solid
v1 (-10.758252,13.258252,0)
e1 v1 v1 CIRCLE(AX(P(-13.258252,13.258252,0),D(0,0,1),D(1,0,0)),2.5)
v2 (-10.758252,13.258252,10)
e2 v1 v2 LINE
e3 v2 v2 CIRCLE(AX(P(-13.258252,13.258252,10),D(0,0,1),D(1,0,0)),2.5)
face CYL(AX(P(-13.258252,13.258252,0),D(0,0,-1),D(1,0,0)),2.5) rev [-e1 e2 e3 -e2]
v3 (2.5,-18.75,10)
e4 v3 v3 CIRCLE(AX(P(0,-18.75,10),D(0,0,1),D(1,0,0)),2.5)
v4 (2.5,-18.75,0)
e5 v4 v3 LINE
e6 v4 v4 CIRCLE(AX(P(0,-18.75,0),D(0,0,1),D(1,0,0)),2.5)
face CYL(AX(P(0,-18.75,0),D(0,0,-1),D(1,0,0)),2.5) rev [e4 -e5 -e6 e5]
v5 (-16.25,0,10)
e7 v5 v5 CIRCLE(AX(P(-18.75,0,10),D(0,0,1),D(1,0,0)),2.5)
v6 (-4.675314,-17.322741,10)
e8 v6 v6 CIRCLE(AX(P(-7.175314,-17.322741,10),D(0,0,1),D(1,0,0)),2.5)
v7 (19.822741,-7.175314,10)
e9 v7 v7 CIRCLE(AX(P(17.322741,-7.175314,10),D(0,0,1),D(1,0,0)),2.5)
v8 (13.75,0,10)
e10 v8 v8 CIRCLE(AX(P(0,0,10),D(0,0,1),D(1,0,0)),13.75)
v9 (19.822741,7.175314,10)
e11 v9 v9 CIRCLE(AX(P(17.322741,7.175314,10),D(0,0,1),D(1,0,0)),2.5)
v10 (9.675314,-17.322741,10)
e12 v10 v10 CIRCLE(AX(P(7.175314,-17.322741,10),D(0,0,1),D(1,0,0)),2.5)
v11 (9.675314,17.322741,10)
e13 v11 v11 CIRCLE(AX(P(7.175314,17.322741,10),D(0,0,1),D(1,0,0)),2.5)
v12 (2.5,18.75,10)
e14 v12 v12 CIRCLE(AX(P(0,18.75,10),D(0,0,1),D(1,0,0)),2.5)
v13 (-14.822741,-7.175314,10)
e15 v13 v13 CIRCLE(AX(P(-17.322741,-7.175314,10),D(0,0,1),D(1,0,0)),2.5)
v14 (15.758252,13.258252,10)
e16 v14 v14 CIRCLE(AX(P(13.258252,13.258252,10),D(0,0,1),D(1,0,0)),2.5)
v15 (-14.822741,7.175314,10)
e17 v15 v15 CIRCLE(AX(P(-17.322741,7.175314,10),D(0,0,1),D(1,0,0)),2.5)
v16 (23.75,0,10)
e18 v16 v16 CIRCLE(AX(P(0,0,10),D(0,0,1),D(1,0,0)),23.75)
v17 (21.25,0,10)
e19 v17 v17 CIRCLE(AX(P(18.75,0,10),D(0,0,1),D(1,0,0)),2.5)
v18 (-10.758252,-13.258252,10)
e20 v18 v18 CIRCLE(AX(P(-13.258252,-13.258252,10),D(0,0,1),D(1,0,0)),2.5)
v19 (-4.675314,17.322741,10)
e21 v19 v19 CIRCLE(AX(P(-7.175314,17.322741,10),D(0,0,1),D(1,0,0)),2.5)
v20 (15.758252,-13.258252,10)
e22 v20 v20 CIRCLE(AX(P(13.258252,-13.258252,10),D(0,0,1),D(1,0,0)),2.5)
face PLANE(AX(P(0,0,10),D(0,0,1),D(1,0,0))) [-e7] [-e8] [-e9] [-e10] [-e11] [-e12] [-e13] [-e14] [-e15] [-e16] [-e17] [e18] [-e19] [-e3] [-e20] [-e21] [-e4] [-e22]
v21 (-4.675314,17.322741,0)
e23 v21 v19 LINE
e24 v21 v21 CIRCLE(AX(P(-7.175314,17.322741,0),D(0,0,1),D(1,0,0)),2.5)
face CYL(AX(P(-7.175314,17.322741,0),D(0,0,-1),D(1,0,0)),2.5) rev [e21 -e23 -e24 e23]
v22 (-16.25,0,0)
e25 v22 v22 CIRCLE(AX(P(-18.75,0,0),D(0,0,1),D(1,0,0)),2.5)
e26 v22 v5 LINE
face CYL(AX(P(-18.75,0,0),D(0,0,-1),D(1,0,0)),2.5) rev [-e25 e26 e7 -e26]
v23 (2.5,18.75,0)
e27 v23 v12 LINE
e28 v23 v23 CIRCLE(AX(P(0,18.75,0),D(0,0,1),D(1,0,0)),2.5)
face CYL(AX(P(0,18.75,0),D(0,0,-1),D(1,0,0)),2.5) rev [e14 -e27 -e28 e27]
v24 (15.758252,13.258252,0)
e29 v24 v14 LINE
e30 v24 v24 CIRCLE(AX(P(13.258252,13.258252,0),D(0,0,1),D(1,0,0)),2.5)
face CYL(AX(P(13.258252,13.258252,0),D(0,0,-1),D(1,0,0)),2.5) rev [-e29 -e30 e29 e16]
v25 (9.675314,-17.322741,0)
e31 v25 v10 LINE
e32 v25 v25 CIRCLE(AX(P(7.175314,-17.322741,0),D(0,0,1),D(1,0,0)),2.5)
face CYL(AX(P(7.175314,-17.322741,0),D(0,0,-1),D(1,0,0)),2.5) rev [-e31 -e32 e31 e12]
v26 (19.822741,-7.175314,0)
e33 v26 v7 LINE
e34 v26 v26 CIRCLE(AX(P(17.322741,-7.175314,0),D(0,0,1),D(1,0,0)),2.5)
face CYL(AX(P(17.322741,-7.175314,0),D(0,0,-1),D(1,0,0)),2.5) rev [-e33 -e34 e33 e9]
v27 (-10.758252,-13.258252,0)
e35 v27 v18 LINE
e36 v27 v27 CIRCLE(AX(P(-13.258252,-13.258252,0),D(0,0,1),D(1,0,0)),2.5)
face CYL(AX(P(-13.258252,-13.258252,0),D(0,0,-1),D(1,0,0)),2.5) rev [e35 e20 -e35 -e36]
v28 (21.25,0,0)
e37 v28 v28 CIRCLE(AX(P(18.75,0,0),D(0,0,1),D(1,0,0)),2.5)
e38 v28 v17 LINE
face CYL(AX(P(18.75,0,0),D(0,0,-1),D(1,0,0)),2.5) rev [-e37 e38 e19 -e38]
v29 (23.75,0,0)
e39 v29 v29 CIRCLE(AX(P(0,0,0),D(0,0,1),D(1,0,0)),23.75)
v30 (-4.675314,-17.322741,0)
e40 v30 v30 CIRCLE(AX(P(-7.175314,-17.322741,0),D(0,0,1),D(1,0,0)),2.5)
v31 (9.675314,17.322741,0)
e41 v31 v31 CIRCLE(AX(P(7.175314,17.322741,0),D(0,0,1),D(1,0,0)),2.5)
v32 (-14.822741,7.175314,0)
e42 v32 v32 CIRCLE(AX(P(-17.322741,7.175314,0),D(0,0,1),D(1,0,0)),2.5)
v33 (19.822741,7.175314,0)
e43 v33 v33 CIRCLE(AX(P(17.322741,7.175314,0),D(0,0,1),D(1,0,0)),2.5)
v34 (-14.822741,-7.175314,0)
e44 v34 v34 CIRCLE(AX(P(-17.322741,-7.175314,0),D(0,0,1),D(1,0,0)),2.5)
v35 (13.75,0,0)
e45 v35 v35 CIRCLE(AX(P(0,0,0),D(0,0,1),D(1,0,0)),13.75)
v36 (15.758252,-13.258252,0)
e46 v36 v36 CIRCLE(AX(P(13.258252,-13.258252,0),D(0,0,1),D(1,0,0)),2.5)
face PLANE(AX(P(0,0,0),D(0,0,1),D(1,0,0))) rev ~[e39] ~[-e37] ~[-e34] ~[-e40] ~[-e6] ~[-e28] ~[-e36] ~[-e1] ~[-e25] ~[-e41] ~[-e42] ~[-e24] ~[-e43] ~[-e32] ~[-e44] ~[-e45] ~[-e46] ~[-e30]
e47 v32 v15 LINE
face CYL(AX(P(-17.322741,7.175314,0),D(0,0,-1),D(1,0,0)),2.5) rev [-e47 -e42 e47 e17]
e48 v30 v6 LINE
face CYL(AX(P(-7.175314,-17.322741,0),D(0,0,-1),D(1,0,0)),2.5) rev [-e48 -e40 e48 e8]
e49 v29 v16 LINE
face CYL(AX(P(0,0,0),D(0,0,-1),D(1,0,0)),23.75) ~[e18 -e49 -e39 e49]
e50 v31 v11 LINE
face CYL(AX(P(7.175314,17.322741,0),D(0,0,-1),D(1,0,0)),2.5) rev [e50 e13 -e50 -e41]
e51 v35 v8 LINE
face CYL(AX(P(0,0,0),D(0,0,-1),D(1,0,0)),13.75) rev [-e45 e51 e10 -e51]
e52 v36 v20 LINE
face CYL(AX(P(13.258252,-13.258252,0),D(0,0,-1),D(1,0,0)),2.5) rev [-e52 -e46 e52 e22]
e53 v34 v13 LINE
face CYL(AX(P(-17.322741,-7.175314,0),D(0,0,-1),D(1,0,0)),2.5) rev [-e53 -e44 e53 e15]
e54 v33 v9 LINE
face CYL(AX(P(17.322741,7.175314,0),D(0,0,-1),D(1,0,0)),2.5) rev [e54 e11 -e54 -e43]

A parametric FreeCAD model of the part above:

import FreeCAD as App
import Part
import Sketcher

doc = App.newDocument("Part")
body = doc.addObject("PartDesign::Body", "Body")

sketch1 = doc.addObject("Sketcher::SketchObject", "Sketch")
body.addObject(sketch1)
sketch1.AttachmentSupport = (doc.XY_Plane, [""])
sketch1.MapMode = "FlatFace"
sketch1.addGeometry(Part.Circle(App.Vector(0, 0, 0), App.Vector(0, 0, 1), 23.8), False)
sketch1.addGeometry(Part.Circle(App.Vector(-13.3, -13.3, 0), App.Vector(0, 0, 1), 2.5), False)
sketch1.addGeometry(Part.Circle(App.Vector(-7.2, -17.3, 0), App.Vector(0, 0, 1), 2.5), False)
sketch1.addGeometry(Part.Circle(App.Vector(-17.3, -7.2, 0), App.Vector(0, 0, 1), 2.5), False)
sketch1.addGeometry(Part.Circle(App.Vector(0, -18.8, 0), App.Vector(0, 0, 1), 2.5), False)
sketch1.addGeometry(Part.Circle(App.Vector(7.2, -17.3, 0), App.Vector(0, 0, 1), 2.5), False)
sketch1.addGeometry(Part.Circle(App.Vector(13.3, -13.3, 0), App.Vector(0, 0, 1), 2.5), False)
sketch1.addGeometry(Part.Circle(App.Vector(17.3, -7.2, 0), App.Vector(0, 0, 1), 2.5), False)
sketch1.addGeometry(Part.Circle(App.Vector(-18.8, 0, 0), App.Vector(0, 0, 1), 2.5), False)
sketch1.addGeometry(Part.Circle(App.Vector(-17.3, 7.2, 0), App.Vector(0, 0, 1), 2.5), False)
sketch1.addGeometry(Part.Circle(App.Vector(-13.3, 13.3, 0), App.Vector(0, 0, 1), 2.5), False)
sketch1.addGeometry(Part.Circle(App.Vector(-7.2, 17.3, 0), App.Vector(0, 0, 1), 2.5), False)
sketch1.addGeometry(Part.Circle(App.Vector(0, 0, 0), App.Vector(0, 0, 1), 13.8), False)
sketch1.addGeometry(Part.Circle(App.Vector(18.8, 0, 0), App.Vector(0, 0, 1), 2.5), False)
sketch1.addGeometry(Part.Circle(App.Vector(17.3, 7.2, 0), App.Vector(0, 0, 1), 2.5), False)
sketch1.addGeometry(Part.Circle(App.Vector(0, 18.8, 0), App.Vector(0, 0, 1), 2.5), False)
sketch1.addGeometry(Part.Circle(App.Vector(7.2, 17.3, 0), App.Vector(0, 0, 1), 2.5), False)
sketch1.addGeometry(Part.Circle(App.Vector(13.3, 13.3, 0), App.Vector(0, 0, 1), 2.5), False)
sketch1.addConstraint(Sketcher.Constraint("Coincident", 0, 3, -1, 1))
sketch1.addConstraint(Sketcher.Constraint("Coincident", 12, 3, -1, 1))
sketch1.addConstraint(Sketcher.Constraint("Equal", 1, 2))
sketch1.addConstraint(Sketcher.Constraint("Equal", 2, 3))
sketch1.addConstraint(Sketcher.Constraint("Equal", 3, 4))
sketch1.addConstraint(Sketcher.Constraint("Equal", 4, 5))
sketch1.addConstraint(Sketcher.Constraint("Equal", 5, 6))
sketch1.addConstraint(Sketcher.Constraint("Equal", 6, 7))
sketch1.addConstraint(Sketcher.Constraint("Equal", 7, 8))
sketch1.addConstraint(Sketcher.Constraint("Equal", 8, 9))
sketch1.addConstraint(Sketcher.Constraint("Equal", 9, 10))
sketch1.addConstraint(Sketcher.Constraint("Equal", 10, 11))
sketch1.addConstraint(Sketcher.Constraint("Equal", 11, 13))
sketch1.addConstraint(Sketcher.Constraint("Equal", 13, 14))
sketch1.addConstraint(Sketcher.Constraint("Equal", 14, 15))
sketch1.addConstraint(Sketcher.Constraint("Equal", 15, 16))
sketch1.addConstraint(Sketcher.Constraint("Equal", 16, 17))
sketch1.addConstraint(Sketcher.Constraint("Symmetric", 7, 3, 9, 3, -1, 1))
sketch1.addConstraint(Sketcher.Constraint("Symmetric", 6, 3, 10, 3, -1, 1))
sketch1.addConstraint(Sketcher.Constraint("Symmetric", 5, 3, 11, 3, -1, 1))
sketch1.addConstraint(Sketcher.Constraint("Symmetric", 8, 3, 13, 3, -1, 1))
sketch1.addConstraint(Sketcher.Constraint("Symmetric", 3, 3, 14, 3, -1, 1))
sketch1.addConstraint(Sketcher.Constraint("Symmetric", 4, 3, 15, 3, -1, 1))
sketch1.addConstraint(Sketcher.Constraint("Symmetric", 2, 3, 16, 3, -1, 1))
sketch1.addConstraint(Sketcher.Constraint("Symmetric", 1, 3, 17, 3, -1, 1))
sketch1.addConstraint(Sketcher.Constraint("Symmetric", 2, 3, 5, 3, -2))
sketch1.addConstraint(Sketcher.Constraint("Symmetric", 1, 3, 6, 3, -2))
sketch1.addConstraint(Sketcher.Constraint("Symmetric", 3, 3, 7, 3, -2))
sketch1.addConstraint(Sketcher.Constraint("PointOnObject", 4, 3, -2))
sketch1.addConstraint(Sketcher.Constraint("PointOnObject", 8, 3, -1))
sketch1.addConstraint(Sketcher.Constraint("Diameter", 1, 5.0))
sketch1.addConstraint(Sketcher.Constraint("Diameter", 0, 47.5))
sketch1.addConstraint(Sketcher.Constraint("Diameter", 12, 27.5))
sketch1.addConstraint(Sketcher.Constraint("DistanceY", 4, 3, -1, 1, 18.75))
sketch1.addConstraint(Sketcher.Constraint("DistanceX", 8, 3, -1, 1, 18.75))
sketch1.addConstraint(Sketcher.Constraint("DistanceY", 2, 3, -1, 1, 17.322741))
sketch1.addConstraint(Sketcher.Constraint("DistanceX", 3, 3, -1, 1, 17.322741))
sketch1.addConstraint(Sketcher.Constraint("DistanceX", 1, 3, 2, 3, 6.082938))
sketch1.addConstraint(Sketcher.Constraint("DistanceY", 2, 3, 1, 3, 4.064489))
sketch1.addConstraint(Sketcher.Constraint("DistanceX", 3, 3, 1, 3, 4.064489))
sketch1.addConstraint(Sketcher.Constraint("DistanceY", 1, 3, 3, 3, 6.082938))
pad1 = doc.addObject("PartDesign::Pad", "Pad")
body.addObject(pad1)
pad1.Profile = sketch1
pad1.Length = 10

doc.recompute()
